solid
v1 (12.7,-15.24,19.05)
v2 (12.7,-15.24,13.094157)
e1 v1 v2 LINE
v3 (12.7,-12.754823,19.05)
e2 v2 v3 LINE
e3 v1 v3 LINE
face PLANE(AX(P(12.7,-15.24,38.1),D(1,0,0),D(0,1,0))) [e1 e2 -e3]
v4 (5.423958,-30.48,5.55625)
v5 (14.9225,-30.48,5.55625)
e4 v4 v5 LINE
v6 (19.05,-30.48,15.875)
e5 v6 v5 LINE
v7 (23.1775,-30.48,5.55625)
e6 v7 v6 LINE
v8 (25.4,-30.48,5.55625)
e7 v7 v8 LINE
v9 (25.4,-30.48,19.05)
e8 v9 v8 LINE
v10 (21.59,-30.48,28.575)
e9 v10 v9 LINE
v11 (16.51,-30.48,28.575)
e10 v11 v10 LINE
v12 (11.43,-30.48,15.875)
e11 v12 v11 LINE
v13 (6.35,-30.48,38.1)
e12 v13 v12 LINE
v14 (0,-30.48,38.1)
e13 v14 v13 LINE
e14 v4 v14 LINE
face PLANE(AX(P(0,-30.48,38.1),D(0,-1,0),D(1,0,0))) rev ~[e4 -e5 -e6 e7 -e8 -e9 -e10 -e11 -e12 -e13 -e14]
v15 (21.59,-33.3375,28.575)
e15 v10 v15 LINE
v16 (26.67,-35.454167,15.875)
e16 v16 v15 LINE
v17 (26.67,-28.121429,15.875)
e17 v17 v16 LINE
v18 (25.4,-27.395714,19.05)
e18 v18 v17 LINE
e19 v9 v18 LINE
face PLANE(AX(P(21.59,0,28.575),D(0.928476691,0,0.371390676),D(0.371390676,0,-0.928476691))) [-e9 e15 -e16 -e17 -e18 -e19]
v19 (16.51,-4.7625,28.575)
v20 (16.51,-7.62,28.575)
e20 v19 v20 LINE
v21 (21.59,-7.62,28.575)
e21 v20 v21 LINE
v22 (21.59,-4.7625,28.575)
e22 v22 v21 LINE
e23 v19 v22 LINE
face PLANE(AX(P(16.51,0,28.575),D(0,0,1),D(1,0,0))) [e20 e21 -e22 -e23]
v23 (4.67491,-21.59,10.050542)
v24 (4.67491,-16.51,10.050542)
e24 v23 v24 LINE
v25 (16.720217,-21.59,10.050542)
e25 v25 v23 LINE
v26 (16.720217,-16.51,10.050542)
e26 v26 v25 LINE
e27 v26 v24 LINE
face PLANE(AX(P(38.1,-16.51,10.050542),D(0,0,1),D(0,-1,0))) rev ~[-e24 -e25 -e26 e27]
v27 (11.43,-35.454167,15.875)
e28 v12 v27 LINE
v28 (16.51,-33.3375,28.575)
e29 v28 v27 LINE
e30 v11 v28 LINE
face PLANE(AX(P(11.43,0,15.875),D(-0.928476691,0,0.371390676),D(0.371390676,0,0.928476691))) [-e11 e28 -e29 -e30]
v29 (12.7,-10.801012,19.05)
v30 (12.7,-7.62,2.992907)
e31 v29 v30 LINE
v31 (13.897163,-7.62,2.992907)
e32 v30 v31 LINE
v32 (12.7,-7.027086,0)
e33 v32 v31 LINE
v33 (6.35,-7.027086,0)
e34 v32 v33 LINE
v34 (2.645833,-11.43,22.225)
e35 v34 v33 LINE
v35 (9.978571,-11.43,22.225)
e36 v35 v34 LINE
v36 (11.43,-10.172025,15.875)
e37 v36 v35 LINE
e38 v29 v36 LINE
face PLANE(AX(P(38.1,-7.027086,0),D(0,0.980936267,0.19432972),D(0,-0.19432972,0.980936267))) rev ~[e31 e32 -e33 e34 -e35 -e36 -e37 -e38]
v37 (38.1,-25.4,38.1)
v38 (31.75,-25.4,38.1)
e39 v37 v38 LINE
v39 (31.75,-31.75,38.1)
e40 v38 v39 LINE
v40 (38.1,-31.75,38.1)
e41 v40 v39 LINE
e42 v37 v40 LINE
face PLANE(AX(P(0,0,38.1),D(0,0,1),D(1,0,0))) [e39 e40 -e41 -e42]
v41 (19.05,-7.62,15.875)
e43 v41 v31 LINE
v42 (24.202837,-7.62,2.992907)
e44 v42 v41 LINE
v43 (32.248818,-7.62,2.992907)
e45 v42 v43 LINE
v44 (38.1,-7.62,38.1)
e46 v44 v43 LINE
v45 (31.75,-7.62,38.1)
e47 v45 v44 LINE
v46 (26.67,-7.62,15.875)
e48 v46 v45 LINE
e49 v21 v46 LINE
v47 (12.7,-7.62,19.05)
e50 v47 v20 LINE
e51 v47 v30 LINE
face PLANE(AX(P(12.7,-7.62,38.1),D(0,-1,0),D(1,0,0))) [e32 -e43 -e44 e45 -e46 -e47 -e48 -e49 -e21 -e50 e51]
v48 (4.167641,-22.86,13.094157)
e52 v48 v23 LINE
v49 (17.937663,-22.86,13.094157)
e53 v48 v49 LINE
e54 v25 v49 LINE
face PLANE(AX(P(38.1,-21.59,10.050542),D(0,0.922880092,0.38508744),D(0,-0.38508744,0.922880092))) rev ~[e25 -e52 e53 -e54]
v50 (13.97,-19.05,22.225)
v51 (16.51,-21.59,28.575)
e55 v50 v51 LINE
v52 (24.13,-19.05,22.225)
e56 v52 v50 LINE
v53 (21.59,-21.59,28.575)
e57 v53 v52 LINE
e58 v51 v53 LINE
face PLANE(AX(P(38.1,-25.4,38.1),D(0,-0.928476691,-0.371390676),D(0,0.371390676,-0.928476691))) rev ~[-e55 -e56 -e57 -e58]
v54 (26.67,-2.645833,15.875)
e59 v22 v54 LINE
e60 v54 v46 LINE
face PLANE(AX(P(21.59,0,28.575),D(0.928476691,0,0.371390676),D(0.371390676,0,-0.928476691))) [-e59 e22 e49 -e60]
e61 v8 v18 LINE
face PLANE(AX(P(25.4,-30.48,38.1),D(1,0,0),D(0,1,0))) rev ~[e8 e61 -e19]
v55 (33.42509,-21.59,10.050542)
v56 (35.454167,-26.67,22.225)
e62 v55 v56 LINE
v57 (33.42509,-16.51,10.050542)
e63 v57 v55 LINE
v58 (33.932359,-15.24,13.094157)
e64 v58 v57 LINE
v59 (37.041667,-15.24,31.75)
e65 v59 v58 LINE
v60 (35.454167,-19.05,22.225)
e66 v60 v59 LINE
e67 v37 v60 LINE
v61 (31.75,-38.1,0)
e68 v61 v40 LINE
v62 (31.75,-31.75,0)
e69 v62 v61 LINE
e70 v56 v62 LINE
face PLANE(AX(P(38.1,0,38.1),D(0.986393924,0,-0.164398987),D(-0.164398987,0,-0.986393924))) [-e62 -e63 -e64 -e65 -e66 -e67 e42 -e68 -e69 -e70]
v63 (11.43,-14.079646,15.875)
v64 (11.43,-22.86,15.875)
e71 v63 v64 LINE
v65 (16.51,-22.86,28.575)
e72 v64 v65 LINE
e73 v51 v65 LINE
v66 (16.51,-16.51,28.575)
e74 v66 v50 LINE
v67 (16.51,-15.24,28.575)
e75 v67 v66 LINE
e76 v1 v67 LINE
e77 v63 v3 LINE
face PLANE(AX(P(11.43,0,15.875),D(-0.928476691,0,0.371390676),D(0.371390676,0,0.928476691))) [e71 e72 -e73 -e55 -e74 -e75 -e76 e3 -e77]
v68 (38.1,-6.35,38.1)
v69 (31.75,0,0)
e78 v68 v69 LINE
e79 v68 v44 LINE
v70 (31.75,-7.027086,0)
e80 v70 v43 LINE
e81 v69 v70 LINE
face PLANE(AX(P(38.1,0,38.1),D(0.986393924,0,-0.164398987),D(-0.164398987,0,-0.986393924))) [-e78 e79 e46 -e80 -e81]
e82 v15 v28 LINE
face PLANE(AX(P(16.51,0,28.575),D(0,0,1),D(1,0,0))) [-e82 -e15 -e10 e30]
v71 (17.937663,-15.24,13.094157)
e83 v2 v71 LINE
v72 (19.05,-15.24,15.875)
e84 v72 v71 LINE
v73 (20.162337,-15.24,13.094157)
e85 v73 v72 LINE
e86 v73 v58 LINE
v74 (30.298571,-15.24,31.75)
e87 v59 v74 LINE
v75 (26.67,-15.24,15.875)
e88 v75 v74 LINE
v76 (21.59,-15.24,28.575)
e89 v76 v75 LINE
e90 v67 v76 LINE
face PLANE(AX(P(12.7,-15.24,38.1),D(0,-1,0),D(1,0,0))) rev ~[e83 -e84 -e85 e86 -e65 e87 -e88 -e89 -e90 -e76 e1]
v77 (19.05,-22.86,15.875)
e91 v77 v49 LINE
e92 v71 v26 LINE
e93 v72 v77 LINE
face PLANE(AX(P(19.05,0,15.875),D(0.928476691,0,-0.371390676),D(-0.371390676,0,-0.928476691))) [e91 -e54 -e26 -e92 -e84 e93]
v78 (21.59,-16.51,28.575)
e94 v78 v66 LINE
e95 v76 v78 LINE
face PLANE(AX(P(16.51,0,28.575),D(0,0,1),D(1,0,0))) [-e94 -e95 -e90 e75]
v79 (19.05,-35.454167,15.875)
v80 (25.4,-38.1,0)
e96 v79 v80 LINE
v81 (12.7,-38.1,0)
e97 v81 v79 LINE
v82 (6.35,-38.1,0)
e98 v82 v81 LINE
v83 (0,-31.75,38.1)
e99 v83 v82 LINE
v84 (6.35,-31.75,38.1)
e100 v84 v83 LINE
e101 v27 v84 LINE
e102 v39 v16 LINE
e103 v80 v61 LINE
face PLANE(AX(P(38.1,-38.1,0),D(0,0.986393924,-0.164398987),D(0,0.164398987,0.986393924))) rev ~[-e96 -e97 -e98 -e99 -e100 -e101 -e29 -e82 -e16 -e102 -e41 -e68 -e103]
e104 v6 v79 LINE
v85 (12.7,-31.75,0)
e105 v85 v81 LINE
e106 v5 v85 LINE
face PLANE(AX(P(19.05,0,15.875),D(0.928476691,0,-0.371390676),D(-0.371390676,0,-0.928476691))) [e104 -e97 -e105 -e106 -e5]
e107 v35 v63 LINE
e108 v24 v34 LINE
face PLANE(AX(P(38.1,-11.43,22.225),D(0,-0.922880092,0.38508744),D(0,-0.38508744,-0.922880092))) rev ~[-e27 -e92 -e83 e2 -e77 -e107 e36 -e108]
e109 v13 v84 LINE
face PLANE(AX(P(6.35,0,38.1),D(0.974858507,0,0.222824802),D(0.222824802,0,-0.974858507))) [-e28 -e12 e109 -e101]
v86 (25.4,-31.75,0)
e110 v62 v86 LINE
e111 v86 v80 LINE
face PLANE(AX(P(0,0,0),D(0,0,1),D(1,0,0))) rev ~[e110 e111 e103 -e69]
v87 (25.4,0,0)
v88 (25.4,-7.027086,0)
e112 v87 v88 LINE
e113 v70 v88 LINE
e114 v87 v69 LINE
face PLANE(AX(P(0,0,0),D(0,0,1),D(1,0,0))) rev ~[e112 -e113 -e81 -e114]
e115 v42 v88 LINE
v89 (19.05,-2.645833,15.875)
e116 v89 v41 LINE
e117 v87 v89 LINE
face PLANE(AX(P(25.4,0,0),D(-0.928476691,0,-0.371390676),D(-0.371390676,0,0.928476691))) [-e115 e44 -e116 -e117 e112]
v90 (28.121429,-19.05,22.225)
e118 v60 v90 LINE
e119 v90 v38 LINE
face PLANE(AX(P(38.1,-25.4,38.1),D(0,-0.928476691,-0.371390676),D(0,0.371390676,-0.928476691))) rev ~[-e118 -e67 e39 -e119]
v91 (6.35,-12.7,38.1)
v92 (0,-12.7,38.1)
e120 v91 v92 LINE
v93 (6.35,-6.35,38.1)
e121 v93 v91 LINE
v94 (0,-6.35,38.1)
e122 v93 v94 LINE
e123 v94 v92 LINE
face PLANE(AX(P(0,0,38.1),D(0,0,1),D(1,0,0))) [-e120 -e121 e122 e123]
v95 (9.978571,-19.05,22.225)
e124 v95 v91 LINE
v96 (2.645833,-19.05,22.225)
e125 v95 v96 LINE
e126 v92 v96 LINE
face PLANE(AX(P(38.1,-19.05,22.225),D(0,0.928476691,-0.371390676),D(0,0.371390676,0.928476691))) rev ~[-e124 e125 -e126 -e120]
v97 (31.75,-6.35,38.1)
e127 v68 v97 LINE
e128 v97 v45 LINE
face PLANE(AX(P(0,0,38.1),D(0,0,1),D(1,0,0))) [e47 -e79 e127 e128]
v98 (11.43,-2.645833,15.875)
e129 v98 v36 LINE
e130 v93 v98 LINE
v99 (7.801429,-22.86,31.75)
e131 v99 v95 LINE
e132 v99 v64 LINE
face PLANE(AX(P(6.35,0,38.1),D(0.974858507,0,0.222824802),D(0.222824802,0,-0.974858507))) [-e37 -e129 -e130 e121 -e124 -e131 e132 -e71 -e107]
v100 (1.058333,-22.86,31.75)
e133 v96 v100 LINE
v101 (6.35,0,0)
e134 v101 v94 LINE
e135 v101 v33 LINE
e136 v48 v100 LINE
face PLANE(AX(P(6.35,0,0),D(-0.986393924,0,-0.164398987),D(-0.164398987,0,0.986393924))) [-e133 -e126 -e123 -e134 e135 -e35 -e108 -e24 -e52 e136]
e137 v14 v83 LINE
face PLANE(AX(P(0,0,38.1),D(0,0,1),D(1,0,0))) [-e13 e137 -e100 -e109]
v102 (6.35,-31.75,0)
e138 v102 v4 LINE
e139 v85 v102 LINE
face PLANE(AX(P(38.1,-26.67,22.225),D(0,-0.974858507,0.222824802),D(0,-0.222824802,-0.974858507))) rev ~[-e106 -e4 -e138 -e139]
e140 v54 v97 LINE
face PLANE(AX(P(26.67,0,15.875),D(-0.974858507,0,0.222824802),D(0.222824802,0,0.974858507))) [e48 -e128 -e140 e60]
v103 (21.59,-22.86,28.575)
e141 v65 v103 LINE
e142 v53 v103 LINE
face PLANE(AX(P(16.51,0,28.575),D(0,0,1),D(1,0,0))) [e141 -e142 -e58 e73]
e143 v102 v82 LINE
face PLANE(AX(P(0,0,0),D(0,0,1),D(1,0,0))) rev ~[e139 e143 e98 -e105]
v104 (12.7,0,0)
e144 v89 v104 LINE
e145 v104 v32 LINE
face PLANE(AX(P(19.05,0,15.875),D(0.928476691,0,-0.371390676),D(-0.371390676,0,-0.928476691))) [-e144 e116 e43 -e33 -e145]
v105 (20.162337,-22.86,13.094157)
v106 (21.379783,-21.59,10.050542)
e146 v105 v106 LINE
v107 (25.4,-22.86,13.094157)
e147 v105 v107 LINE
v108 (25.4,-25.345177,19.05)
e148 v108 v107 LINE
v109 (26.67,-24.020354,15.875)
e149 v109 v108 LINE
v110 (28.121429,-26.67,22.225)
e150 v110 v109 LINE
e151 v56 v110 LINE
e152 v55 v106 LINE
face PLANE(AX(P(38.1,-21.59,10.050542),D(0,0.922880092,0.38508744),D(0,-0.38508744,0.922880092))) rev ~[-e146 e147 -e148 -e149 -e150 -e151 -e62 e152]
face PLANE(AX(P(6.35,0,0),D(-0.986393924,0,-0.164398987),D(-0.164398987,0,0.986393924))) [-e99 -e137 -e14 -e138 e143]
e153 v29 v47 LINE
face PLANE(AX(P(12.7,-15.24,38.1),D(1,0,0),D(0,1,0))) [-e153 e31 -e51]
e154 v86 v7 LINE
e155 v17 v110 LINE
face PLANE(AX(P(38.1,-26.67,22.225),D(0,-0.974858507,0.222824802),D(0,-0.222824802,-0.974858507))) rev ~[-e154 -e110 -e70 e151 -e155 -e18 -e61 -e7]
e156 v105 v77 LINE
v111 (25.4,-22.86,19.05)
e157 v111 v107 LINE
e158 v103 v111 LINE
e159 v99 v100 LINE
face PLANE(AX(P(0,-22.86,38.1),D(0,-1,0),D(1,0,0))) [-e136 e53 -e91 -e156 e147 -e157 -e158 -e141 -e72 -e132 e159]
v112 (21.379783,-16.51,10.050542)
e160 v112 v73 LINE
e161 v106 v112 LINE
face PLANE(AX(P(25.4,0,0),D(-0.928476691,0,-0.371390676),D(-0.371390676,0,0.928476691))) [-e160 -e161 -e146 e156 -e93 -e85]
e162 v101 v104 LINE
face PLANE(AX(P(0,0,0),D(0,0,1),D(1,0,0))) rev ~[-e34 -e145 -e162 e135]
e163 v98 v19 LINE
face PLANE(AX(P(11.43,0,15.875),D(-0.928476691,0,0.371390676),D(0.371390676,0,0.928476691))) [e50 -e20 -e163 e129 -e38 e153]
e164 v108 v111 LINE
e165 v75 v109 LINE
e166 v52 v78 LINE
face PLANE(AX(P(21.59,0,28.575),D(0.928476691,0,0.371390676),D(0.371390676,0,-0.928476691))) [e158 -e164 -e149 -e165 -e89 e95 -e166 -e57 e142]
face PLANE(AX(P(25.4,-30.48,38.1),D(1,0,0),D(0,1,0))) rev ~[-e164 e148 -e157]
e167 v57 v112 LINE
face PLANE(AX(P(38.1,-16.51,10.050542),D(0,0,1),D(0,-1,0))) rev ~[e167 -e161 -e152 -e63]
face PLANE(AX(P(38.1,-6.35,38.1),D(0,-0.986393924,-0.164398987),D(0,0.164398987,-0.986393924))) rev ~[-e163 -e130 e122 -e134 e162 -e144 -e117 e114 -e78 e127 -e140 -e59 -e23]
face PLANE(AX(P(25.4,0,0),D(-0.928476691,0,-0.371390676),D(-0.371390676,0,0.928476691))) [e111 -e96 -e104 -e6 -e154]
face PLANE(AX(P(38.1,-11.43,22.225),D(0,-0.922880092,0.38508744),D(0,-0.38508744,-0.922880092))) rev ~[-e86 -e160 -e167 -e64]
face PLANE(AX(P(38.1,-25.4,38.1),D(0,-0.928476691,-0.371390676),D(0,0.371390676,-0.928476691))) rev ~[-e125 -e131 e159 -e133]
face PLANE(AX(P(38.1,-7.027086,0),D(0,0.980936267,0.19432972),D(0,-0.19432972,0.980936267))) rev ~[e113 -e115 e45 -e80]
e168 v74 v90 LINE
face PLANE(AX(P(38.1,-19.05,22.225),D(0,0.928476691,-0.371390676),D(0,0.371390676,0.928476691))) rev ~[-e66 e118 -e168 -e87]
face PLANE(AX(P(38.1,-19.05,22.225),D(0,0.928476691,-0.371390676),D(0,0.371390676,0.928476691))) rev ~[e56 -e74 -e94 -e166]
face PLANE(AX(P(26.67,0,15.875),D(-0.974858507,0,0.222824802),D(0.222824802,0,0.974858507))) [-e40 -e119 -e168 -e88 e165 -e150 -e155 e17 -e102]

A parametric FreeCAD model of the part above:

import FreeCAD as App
import Part
import Sketcher

V = App.Vector
Q = App.Units.Quantity

doc = App.newDocument("Part")
body = doc.addObject("PartDesign::Body", "Body")

# Sketch on XZ plane
sketch1 = body.newObject("Sketcher::SketchObject", "Sketch")
sketch1.AttachmentSupport = (doc.getObject("XZ_Plane"), [""])
sketch1.MapMode = "FlatFace"
sketch1.addGeometry([
    Part.LineSegment(V(0, 38, 0), V(0, 0, 0)),
    Part.LineSegment(V(0, 0, 0), V(38, 0, 0)),
    Part.LineSegment(V(38, 0, 0), V(38, 38, 0)),
    Part.LineSegment(V(38, 38, 0), V(0, 38, 0)),
], False)
sketch1.addConstraint([
    Sketcher.Constraint("Coincident", 0, 2, 1, 1),
    Sketcher.Constraint("Coincident", 1, 2, 2, 1),
    Sketcher.Constraint("Coincident", 2, 2, 3, 1),
    Sketcher.Constraint("Coincident", 3, 2, 0, 1),
    Sketcher.Constraint("Vertical", 0),
    Sketcher.Constraint("Horizontal", 1),
    Sketcher.Constraint("Vertical", 2),
    Sketcher.Constraint("Horizontal", 3),
    Sketcher.Constraint("Coincident", 0, 2, -1, 1),
    Sketcher.Constraint("Equal", 3, 0),
    Sketcher.Constraint("DistanceX", 1, 1, 1, 2, Q("1.5 in")),
])
pad1 = body.newObject("PartDesign::Pad", "Pad")
pad1.Profile = sketch1
pad1.Length = Q("1.5 in")

# Sketch on XZ plane
sketch2 = body.newObject("Sketcher::SketchObject", "Sketch001")
sketch2.AttachmentSupport = (doc.getObject("XZ_Plane"), [""])
sketch2.MapMode = "FlatFace"
sketch2.addGeometry([
    Part.LineSegment(V(6, 0, 0), V(0, 38, 0)),  # 0
    Part.LineSegment(V(0, 38, 0), V(0, 0, 0)),  # 1
    Part.LineSegment(V(0, 0, 0), V(6, 0, 0)),  # 2
    Part.LineSegment(V(32, 38, 0), V(6, 38, 0)),  # 3
    Part.LineSegment(V(6, 38, 0), V(11, 16, 0)),  # 4
    Part.LineSegment(V(11, 16, 0), V(17, 29, 0)),  # 5
    Part.LineSegment(V(17, 29, 0), V(22, 29, 0)),  # 6
    Part.LineSegment(V(22, 29, 0), V(27, 16, 0)),  # 7
    Part.LineSegment(V(27, 16, 0), V(32, 38, 0)),  # 8
    Part.LineSegment(V(19, 16, 0), V(13, 0, 0)),  # 9
    Part.LineSegment(V(13, 0, 0), V(25, 0, 0)),  # 10
    Part.LineSegment(V(25, 0, 0), V(19, 16, 0)),  # 11
    Part.LineSegment(V(38, 0, 0), V(38, 38, 0)),  # 12
    Part.LineSegment(V(38, 38, 0), V(32, 0, 0)),  # 13
    Part.LineSegment(V(32, 0, 0), V(38, 0, 0)),  # 14
], False)
sketch2.addConstraint([
    Sketcher.Constraint("Coincident", 0, 2, 1, 1),
    Sketcher.Constraint("Coincident", 1, 2, 2, 1),
    Sketcher.Constraint("Coincident", 2, 2, 0, 1),
    Sketcher.Constraint("Coincident", 3, 2, 4, 1),
    Sketcher.Constraint("Coincident", 4, 2, 5, 1),
    Sketcher.Constraint("Coincident", 5, 2, 6, 1),
    Sketcher.Constraint("Coincident", 6, 2, 7, 1),
    Sketcher.Constraint("Coincident", 7, 2, 8, 1),
    Sketcher.Constraint("Coincident", 8, 2, 3, 1),
    Sketcher.Constraint("Coincident", 9, 2, 10, 1),
    Sketcher.Constraint("Coincident", 10, 2, 11, 1),
    Sketcher.Constraint("Coincident", 11, 2, 9, 1),
    Sketcher.Constraint("Coincident", 12, 2, 13, 1),
    Sketcher.Constraint("Coincident", 13, 2, 14, 1),
    Sketcher.Constraint("Coincident", 14, 2, 12, 1),
    Sketcher.Constraint("Vertical", 1),
    Sketcher.Constraint("Horizontal", 2),
    Sketcher.Constraint("Horizontal", 3),
    Sketcher.Constraint("Horizontal", 6),
    Sketcher.Constraint("Horizontal", 10),
    Sketcher.Constraint("Vertical", 12),
    Sketcher.Constraint("Horizontal", 14),
    Sketcher.Constraint("Coincident", 1, 2, -1, 1),
    Sketcher.Constraint("PointOnObject", 9, 2, -1),
    Sketcher.Constraint("PointOnObject", 13, 2, -1),
    Sketcher.Constraint("Parallel", 5, 9),
    Sketcher.Constraint("Parallel", 7, 11),
    Sketcher.Constraint("Horizontal", 0, 2, 3, 2),
    Sketcher.Constraint("Horizontal", 4, 2, 7, 2),
    Sketcher.Constraint("Horizontal", 7, 2, 11, 2),
    Sketcher.Constraint("Horizontal", 8, 2, 12, 2),
    Sketcher.Constraint("Vertical", 2, 2, 3, 2),
    Sketcher.Constraint("Vertical", 8, 2, 13, 2),
    Sketcher.Constraint("Equal", 2, 14),
    Sketcher.Constraint("Equal", 5, 7),
    Sketcher.Constraint("Equal", 4, 8),
    Sketcher.Constraint("DistanceX", 3, 2, 3, 1, Q("1 in")),
    Sketcher.Constraint("DistanceX", 6, 1, 6, 2, Q("0.2 in")),
    Sketcher.Constraint("DistanceX", 10, 1, 10, 2, Q("0.5 in")),
    Sketcher.Constraint("DistanceY", 1, 2, 1, 1, Q("1.5 in")),
    Sketcher.Constraint("DistanceX", -1, 1, 10, 2, Q("1 in")),
    Sketcher.Constraint("DistanceX", 9, 2, 14, 2, Q("1 in")),
    Sketcher.Constraint("DistanceX", 2, 2, 4, 2, Q("0.2 in")),
    Sketcher.Constraint("DistanceY", 4, 2, 5, 2, Q("0.5 in")),
])
pocket1 = body.newObject("PartDesign::Pocket", "Pocket")
pocket1.Profile = sketch2
pocket1.Length = Q("1.5 in")
pocket1.Reversed = True

# Sketch on YZ plane
sketch3 = body.newObject("Sketcher::SketchObject", "Sketch002")
sketch3.AttachmentSupport = (doc.getObject("YZ_Plane"), [""])
sketch3.MapMode = "FlatFace"
sketch3.AttachmentOffset = App.Placement(V(0, 0, 1.5 * 25.4), App.Rotation())
sketch3.addGeometry([
    Part.LineSegment(V(-38, 38, 0), V(-38, 0, 0)),  # 0
    Part.LineSegment(V(-38, 0, 0), V(-32, 38, 0)),  # 1
    Part.LineSegment(V(-32, 38, 0), V(-38, 38, 0)),  # 2
    Part.LineSegment(V(-19, 22, 0), V(-13, 38, 0)),  # 3
    Part.LineSegment(V(-13, 38, 0), V(-25, 38, 0)),  # 4
    Part.LineSegment(V(-25, 38, 0), V(-19, 22, 0)),  # 5
    Part.LineSegment(V(-32, 0, 0), V(-7, 0, 0)),  # 6
    Part.LineSegment(V(-7, 0, 0), V(-11, 22, 0)),  # 7
    Part.LineSegment(V(-11, 22, 0), V(-17, 10, 0)),  # 8
    Part.LineSegment(V(-17, 10, 0), V(-22, 10, 0)),  # 9
    Part.LineSegment(V(-22, 10, 0), V(-27, 22, 0)),  # 10
    Part.LineSegment(V(-27, 22, 0), V(-32, 0, 0)),  # 11
    Part.LineSegment(V(-6, 38, 0), V(0, 0, 0)),  # 12
    Part.LineSegment(V(0, 0, 0), V(0, 38, 0)),  # 13
    Part.LineSegment(V(0, 38, 0), V(-6, 38, 0)),  # 14
], False)
sketch3.addConstraint([
    Sketcher.Constraint("Coincident", 0, 2, 1, 1),
    Sketcher.Constraint("Coincident", 1, 2, 2, 1),
    Sketcher.Constraint("Coincident", 2, 2, 0, 1),
    Sketcher.Constraint("Coincident", 3, 2, 4, 1),
    Sketcher.Constraint("Coincident", 4, 2, 5, 1),
    Sketcher.Constraint("Coincident", 5, 2, 3, 1),
    Sketcher.Constraint("Coincident", 6, 2, 7, 1),
    Sketcher.Constraint("Coincident", 7, 2, 8, 1),
    Sketcher.Constraint("Coincident", 8, 2, 9, 1),
    Sketcher.Constraint("Coincident", 9, 2, 10, 1),
    Sketcher.Constraint("Coincident", 10, 2, 11, 1),
    Sketcher.Constraint("Coincident", 11, 2, 6, 1),
    Sketcher.Constraint("Coincident", 12, 2, 13, 1),
    Sketcher.Constraint("Coincident", 13, 2, 14, 1),
    Sketcher.Constraint("Coincident", 14, 2, 12, 1),
    Sketcher.Constraint("Vertical", 0),
    Sketcher.Constraint("Horizontal", 2),
    Sketcher.Constraint("Horizontal", 4),
    Sketcher.Constraint("Horizontal", 6),
    Sketcher.Constraint("Horizontal", 9),
    Sketcher.Constraint("Vertical", 13),
    Sketcher.Constraint("Horizontal", 14),
    Sketcher.Constraint("Coincident", 12, 2, -1, 1),
    Sketcher.Constraint("PointOnObject", 0, 2, -1),
    Sketcher.Constraint("PointOnObject", 6, 2, -1),
    Sketcher.Constraint("Horizontal", 2, 2, 3, 2),
    Sketcher.Constraint("Horizontal", 5, 2, 7, 2),
    Sketcher.Constraint("Horizontal", 7, 2, 10, 2),
    Sketcher.Constraint("Horizontal", 4, 2, 13, 2),
    Sketcher.Constraint("Vertical", 1, 2, 11, 2),
    Sketcher.Constraint("Equal", 2, 14),
    Sketcher.Constraint("Equal", 3, 5),
    Sketcher.Constraint("Equal", 8, 10),
    Sketcher.Constraint("DistanceX", 4, 2, 4, 1, Q("0.5 in")),
    Sketcher.Constraint("DistanceX", 9, 2, 9, 1, Q("0.2 in")),
    Sketcher.Constraint("DistanceY", 0, 2, 0, 1, Q("1.5 in")),
    Sketcher.Constraint("DistanceX", 4, 2, -1, 1, Q("1 in")),
    Sketcher.Constraint("DistanceX", 2, 2, 3, 2, Q("1 in")),
    Sketcher.Constraint("DistanceX", 2, 2, 2, 1, Q("0.25 in")),
    Sketcher.Constraint("DistanceX", 5, 2, 7, 2, Q("0.3 in")),
    Sketcher.Constraint("DistanceX", 5, 2, 8, 2, Q("0.1 in")),
    Sketcher.Constraint("DistanceY", -1, 1, 5, 2, Q("0.875 in")),
    Sketcher.Constraint("Distance", 8, Q("13.191809 mm")),
    Sketcher.Constraint("DistanceX", 6, 1, 6, 2, Q("24.722914 mm")),
])
pocket2 = body.newObject("PartDesign::Pocket", "Pocket001")
pocket2.Profile = sketch3
pocket2.Length = Q("1.5 in")

# Sketch on XY plane
sketch4 = body.newObject("Sketcher::SketchObject", "Sketch003")
sketch4.AttachmentSupport = (doc.getObject("XY_Plane"), [""])
sketch4.MapMode = "FlatFace"
sketch4.AttachmentOffset = App.Placement(V(0, 0, 1.5 * 25.4), App.Rotation())
sketch4.addGeometry([
    Part.LineSegment(V(0, -23, 0), V(0, -30, 0)),  # 0
    Part.LineSegment(V(0, -30, 0), V(25, -30, 0)),  # 1
    Part.LineSegment(V(25, -30, 0), V(25, -23, 0)),  # 2
    Part.LineSegment(V(25, -23, 0), V(0, -23, 0)),  # 3
    Part.LineSegment(V(13, -8, 0), V(13, -15, 0)),  # 4
    Part.LineSegment(V(13, -15, 0), V(38, -15, 0)),  # 5
    Part.LineSegment(V(38, -15, 0), V(38, -8, 0)),  # 6
    Part.LineSegment(V(38, -8, 0), V(13, -8, 0)),  # 7
], False)
sketch4.addConstraint([
    Sketcher.Constraint("Coincident", 0, 2, 1, 1),
    Sketcher.Constraint("Coincident", 1, 2, 2, 1),
    Sketcher.Constraint("Coincident", 2, 2, 3, 1),
    Sketcher.Constraint("Coincident", 3, 2, 0, 1),
    Sketcher.Constraint("Coincident", 4, 2, 5, 1),
    Sketcher.Constraint("Coincident", 5, 2, 6, 1),
    Sketcher.Constraint("Coincident", 6, 2, 7, 1),
    Sketcher.Constraint("Coincident", 7, 2, 4, 1),
    Sketcher.Constraint("Vertical", 0),
    Sketcher.Constraint("Horizontal", 1),
    Sketcher.Constraint("Vertical", 2),
    Sketcher.Constraint("Horizontal", 3),
    Sketcher.Constraint("Vertical", 4),
    Sketcher.Constraint("Horizontal", 5),
    Sketcher.Constraint("Vertical", 6),
    Sketcher.Constraint("Horizontal", 7),
    Sketcher.Constraint("PointOnObject", 0, 2, -2),
    Sketcher.Constraint("Equal", 3, 5),
    Sketcher.Constraint("Equal", 2, 4),
    Sketcher.Constraint("DistanceX", 1, 1, 1, 2, Q("1 in")),
    Sketcher.Constraint("DistanceY", 0, 2, 0, 1, Q("0.3 in")),
    Sketcher.Constraint("DistanceY", 0, 2, -1, 1, Q("1.2 in")),
    Sketcher.Constraint("DistanceX", -1, 1, 4, 2, Q("0.5 in")),
    Sketcher.Constraint("DistanceY", 4, 2, -1, 1, Q("0.6 in")),
])
pocket3 = body.newObject("PartDesign::Pocket", "Pocket002")
pocket3.Profile = sketch4
pocket3.Length = Q("1.5 in")

doc.recompute()
